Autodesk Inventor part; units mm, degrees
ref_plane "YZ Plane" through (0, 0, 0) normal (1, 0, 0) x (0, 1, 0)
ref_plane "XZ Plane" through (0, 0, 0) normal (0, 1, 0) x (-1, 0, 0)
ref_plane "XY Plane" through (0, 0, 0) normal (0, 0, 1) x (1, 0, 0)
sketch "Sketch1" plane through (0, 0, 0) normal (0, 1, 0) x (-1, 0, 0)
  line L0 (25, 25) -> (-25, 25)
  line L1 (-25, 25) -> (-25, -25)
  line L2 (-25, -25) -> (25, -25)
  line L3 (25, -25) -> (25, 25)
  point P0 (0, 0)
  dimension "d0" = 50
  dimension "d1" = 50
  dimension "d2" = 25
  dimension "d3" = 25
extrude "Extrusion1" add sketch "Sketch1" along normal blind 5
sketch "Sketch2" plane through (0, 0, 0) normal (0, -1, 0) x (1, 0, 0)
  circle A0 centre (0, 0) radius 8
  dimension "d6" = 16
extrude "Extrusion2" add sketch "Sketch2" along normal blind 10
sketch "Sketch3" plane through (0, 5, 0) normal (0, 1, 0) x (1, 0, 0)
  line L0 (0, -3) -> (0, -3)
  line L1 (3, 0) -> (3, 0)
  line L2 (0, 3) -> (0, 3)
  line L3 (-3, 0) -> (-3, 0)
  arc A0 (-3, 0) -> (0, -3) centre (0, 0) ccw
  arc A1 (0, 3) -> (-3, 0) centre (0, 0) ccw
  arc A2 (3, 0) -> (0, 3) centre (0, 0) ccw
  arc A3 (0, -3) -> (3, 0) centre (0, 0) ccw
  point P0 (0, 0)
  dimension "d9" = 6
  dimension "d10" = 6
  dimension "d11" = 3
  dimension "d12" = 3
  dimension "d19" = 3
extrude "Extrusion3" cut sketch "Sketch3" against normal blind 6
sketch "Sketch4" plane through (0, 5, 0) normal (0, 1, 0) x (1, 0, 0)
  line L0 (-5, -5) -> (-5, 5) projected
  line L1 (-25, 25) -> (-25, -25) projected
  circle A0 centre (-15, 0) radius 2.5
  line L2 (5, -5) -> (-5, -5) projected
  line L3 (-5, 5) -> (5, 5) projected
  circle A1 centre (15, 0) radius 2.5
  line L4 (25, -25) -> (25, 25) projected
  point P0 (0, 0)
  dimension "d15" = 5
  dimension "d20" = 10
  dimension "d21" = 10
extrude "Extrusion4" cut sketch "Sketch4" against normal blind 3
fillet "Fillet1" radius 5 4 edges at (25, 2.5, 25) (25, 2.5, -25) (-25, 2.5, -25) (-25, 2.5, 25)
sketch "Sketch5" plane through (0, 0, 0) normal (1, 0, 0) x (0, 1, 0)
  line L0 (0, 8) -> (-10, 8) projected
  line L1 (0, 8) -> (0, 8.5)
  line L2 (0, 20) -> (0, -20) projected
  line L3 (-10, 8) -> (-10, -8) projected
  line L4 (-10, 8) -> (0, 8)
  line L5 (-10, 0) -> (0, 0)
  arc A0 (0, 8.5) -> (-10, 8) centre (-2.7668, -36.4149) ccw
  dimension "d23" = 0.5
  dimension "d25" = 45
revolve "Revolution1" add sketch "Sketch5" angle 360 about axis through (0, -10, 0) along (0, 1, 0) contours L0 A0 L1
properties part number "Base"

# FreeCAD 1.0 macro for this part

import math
import FreeCAD as App
import Part
import Sketcher
from FreeCAD import Vector
Q = App.Units.Quantity


def edges_at(feature, points):
    """Names of the edges that pass closest to the given points."""
    edges = feature.Shape.Edges
    near = lambda p: min(range(len(edges)), key=lambda i: edges[i].distToShape(Part.Vertex(*p))[0])
    return sorted({f"Edge{near(p) + 1}" for p in points})


def add_polygon(sketch, points):
    """Adds a closed chain of lines whose ends are joined by coincident constraints."""
    first, n = sketch.GeometryCount, len(points)
    for a, b in zip(points, points[1:] + points[:1]):
        sketch.addGeometry(Part.LineSegment(App.Vector(*a, 0), App.Vector(*b, 0)), False)
    for i in range(n):
        sketch.addConstraint(Sketcher.Constraint("Coincident", first + i, 2, first + (i + 1) % n, 1))

doc = App.newDocument("Part")
params = doc.addObject("Spreadsheet::Sheet", "Params")
for row, (alias, value) in enumerate([
    ("sketch1_width", "50 mm"),
    ("pad1_length", "5 mm"),
    ("sketch2_diameter", "16 mm"),
    ("pad2_length", "10 mm"),
    ("sketch3_diameter", "6 mm"),
    ("pocket1_length", "6 mm"),
    ("sketch4_diameter", "5 mm"),
    ("pocket2_length", "3 mm"),
    ("fillet_radius", "5 mm"),
    ("sketch5_radius", "45 mm"),
    ("sketch5_height", "0.5 mm"),
    ("sketch5_width", "10 mm"),
    ("revolution_angle", "360 deg"),
], start=1):
    params.set(f"A{row}", alias)
    params.set(f"B{row}", "=" + value)
    params.setAlias(f"B{row}", alias)

body = doc.addObject("PartDesign::Body", "Body")

sketch1 = body.newObject("Sketcher::SketchObject", "Sketch")
sketch1.AttachmentSupport = (doc.getObject("XZ_Plane"), [""])
sketch1.MapMode = "FlatFace"
add_polygon(sketch1, [(-25, -25), (-25, 25), (25, 25), (25, -25)])
sketch1.addConstraint([
    Sketcher.Constraint("Vertical", 0),
    Sketcher.Constraint("Horizontal", 1),
    Sketcher.Constraint("Vertical", 2),
    Sketcher.Constraint("Horizontal", 3),
    Sketcher.Constraint("Symmetric", 0, 2, 2, 2, -1, 1),
    Sketcher.Constraint("Equal", 3, 0),
    Sketcher.Constraint("DistanceX", 1, 1, 1, 2, Q("50 mm")),
])
sketch1.setExpression("Constraints[10]", "Params.sketch1_width")
pad1 = body.newObject("PartDesign::Pad", "Pad")
pad1.Profile = sketch1
pad1.setExpression("Length", "Params.pad1_length")
pad1.Reversed = True

sketch2 = body.newObject("Sketcher::SketchObject", "Sketch001")
sketch2.AttachmentSupport = (doc.getObject("XZ_Plane"), [""])
sketch2.MapMode = "FlatFace"
sketch2.addGeometry(Part.Circle(Vector(0, 0, 0), Vector(0, 0, 1), 8), False)
sketch2.addConstraint([
    Sketcher.Constraint("Coincident", 0, 3, -1, 1),
    Sketcher.Constraint("Diameter", 0, Q("16 mm")),
])
sketch2.setExpression("Constraints[1]", "Params.sketch2_diameter")
pad2 = body.newObject("PartDesign::Pad", "Pad001")
pad2.Profile = sketch2
pad2.setExpression("Length", "Params.pad2_length")

sketch3 = body.newObject("Sketcher::SketchObject", "Sketch002")
sketch3.AttachmentSupport = (doc.getObject("XZ_Plane"), [""])
sketch3.MapMode = "FlatFace"
sketch3.AttachmentOffset = App.Placement(Vector(0, 0, -5), App.Rotation())
sketch3.addGeometry(Part.Circle(Vector(0, 0, 0), Vector(0, 0, 1), 3), False)
sketch3.addConstraint([
    Sketcher.Constraint("Coincident", 0, 3, -1, 1),
    Sketcher.Constraint("Diameter", 0, Q("6 mm")),
])
sketch3.setExpression("Constraints[1]", "Params.sketch3_diameter")
pocket1 = body.newObject("PartDesign::Pocket", "Pocket")
pocket1.Profile = sketch3
pocket1.setExpression("Length", "Params.pocket1_length")
pocket1.Reversed = True

sketch4 = body.newObject("Sketcher::SketchObject", "Sketch003")
sketch4.AttachmentSupport = (doc.getObject("XZ_Plane"), [""])
sketch4.MapMode = "FlatFace"
sketch4.AttachmentOffset = App.Placement(Vector(0, 0, -5), App.Rotation())
sketch4.addGeometry([
    Part.Circle(Vector(-15, 0, 0), Vector(0, 0, 1), 2.5),
    Part.Circle(Vector(15, 0, 0), Vector(0, 0, 1), 2.5),
], False)
sketch4.addConstraint([
    Sketcher.Constraint("Equal", 0, 1),
    Sketcher.Constraint("Symmetric", 0, 3, 1, 3, -1, 1),
    Sketcher.Constraint("PointOnObject", 0, 3, -1),
    Sketcher.Constraint("Diameter", 0, Q("5 mm")),
    Sketcher.Constraint("DistanceX", 0, 3, -1, 1, Q("15 mm")),
])
sketch4.setExpression("Constraints[3]", "Params.sketch4_diameter")
pocket2 = body.newObject("PartDesign::Pocket", "Pocket001")
pocket2.Profile = sketch4
pocket2.setExpression("Length", "Params.pocket2_length")
pocket2.Reversed = True
doc.recompute()

fillet = body.newObject("PartDesign::Fillet", "Fillet")
fillet.Base = (pocket2, edges_at(pocket2, [
    (25, 2.5, 25),
    (25, 2.5, -25),
    (-25, 2.5, -25),
    (-25, 2.5, 25),
]))
fillet.setExpression("Radius", "Params.fillet_radius")

sketch5 = body.newObject("Sketcher::SketchObject", "Sketch004")
sketch5.AttachmentSupport = (doc.getObject("YZ_Plane"), [""])
sketch5.MapMode = "FlatFace"
sketch5.addGeometry([
    Part.LineSegment(Vector(-10, 8, 0), Vector(0, 8, 0)),
    Part.LineSegment(Vector(0, 8, 0), Vector(0, 8.5, 0)),
    Part.ArcOfCircle(Part.Circle(Vector(-2.8, -36.4, 0), Vector(0, 0, 1), 45), math.radians(86.47), math.radians(99.25)),
], False)
sketch5.addConstraint([
    Sketcher.Constraint("Coincident", 0, 2, 1, 1),
    Sketcher.Constraint("Coincident", 1, 2, 2, 1),
    Sketcher.Constraint("Coincident", 2, 2, 0, 1),
    Sketcher.Constraint("Horizontal", 0),
    Sketcher.Constraint("Vertical", 1),
    Sketcher.Constraint("PointOnObject", 0, 2, -2),
    Sketcher.Constraint("Radius", 2, Q("45 mm")),
    Sketcher.Constraint("DistanceY", 1, 1, 1, 2, Q("0.5 mm")),
    Sketcher.Constraint("DistanceX", 0, 1, 0, 2, Q("10 mm")),
    Sketcher.Constraint("DistanceY", -1, 1, 0, 2, Q("8 mm")),
])
sketch5.setExpression("Constraints[6]", "Params.sketch5_radius")
sketch5.setExpression("Constraints[7]", "Params.sketch5_height")
sketch5.setExpression("Constraints[8]", "Params.sketch5_width")
revolution = body.newObject("PartDesign::Revolution", "Revolution")
revolution.Profile = sketch5
revolution.ReferenceAxis = (sketch5, ["H_Axis"])
revolution.setExpression("Angle", "Params.revolution_angle")

doc.recompute()
